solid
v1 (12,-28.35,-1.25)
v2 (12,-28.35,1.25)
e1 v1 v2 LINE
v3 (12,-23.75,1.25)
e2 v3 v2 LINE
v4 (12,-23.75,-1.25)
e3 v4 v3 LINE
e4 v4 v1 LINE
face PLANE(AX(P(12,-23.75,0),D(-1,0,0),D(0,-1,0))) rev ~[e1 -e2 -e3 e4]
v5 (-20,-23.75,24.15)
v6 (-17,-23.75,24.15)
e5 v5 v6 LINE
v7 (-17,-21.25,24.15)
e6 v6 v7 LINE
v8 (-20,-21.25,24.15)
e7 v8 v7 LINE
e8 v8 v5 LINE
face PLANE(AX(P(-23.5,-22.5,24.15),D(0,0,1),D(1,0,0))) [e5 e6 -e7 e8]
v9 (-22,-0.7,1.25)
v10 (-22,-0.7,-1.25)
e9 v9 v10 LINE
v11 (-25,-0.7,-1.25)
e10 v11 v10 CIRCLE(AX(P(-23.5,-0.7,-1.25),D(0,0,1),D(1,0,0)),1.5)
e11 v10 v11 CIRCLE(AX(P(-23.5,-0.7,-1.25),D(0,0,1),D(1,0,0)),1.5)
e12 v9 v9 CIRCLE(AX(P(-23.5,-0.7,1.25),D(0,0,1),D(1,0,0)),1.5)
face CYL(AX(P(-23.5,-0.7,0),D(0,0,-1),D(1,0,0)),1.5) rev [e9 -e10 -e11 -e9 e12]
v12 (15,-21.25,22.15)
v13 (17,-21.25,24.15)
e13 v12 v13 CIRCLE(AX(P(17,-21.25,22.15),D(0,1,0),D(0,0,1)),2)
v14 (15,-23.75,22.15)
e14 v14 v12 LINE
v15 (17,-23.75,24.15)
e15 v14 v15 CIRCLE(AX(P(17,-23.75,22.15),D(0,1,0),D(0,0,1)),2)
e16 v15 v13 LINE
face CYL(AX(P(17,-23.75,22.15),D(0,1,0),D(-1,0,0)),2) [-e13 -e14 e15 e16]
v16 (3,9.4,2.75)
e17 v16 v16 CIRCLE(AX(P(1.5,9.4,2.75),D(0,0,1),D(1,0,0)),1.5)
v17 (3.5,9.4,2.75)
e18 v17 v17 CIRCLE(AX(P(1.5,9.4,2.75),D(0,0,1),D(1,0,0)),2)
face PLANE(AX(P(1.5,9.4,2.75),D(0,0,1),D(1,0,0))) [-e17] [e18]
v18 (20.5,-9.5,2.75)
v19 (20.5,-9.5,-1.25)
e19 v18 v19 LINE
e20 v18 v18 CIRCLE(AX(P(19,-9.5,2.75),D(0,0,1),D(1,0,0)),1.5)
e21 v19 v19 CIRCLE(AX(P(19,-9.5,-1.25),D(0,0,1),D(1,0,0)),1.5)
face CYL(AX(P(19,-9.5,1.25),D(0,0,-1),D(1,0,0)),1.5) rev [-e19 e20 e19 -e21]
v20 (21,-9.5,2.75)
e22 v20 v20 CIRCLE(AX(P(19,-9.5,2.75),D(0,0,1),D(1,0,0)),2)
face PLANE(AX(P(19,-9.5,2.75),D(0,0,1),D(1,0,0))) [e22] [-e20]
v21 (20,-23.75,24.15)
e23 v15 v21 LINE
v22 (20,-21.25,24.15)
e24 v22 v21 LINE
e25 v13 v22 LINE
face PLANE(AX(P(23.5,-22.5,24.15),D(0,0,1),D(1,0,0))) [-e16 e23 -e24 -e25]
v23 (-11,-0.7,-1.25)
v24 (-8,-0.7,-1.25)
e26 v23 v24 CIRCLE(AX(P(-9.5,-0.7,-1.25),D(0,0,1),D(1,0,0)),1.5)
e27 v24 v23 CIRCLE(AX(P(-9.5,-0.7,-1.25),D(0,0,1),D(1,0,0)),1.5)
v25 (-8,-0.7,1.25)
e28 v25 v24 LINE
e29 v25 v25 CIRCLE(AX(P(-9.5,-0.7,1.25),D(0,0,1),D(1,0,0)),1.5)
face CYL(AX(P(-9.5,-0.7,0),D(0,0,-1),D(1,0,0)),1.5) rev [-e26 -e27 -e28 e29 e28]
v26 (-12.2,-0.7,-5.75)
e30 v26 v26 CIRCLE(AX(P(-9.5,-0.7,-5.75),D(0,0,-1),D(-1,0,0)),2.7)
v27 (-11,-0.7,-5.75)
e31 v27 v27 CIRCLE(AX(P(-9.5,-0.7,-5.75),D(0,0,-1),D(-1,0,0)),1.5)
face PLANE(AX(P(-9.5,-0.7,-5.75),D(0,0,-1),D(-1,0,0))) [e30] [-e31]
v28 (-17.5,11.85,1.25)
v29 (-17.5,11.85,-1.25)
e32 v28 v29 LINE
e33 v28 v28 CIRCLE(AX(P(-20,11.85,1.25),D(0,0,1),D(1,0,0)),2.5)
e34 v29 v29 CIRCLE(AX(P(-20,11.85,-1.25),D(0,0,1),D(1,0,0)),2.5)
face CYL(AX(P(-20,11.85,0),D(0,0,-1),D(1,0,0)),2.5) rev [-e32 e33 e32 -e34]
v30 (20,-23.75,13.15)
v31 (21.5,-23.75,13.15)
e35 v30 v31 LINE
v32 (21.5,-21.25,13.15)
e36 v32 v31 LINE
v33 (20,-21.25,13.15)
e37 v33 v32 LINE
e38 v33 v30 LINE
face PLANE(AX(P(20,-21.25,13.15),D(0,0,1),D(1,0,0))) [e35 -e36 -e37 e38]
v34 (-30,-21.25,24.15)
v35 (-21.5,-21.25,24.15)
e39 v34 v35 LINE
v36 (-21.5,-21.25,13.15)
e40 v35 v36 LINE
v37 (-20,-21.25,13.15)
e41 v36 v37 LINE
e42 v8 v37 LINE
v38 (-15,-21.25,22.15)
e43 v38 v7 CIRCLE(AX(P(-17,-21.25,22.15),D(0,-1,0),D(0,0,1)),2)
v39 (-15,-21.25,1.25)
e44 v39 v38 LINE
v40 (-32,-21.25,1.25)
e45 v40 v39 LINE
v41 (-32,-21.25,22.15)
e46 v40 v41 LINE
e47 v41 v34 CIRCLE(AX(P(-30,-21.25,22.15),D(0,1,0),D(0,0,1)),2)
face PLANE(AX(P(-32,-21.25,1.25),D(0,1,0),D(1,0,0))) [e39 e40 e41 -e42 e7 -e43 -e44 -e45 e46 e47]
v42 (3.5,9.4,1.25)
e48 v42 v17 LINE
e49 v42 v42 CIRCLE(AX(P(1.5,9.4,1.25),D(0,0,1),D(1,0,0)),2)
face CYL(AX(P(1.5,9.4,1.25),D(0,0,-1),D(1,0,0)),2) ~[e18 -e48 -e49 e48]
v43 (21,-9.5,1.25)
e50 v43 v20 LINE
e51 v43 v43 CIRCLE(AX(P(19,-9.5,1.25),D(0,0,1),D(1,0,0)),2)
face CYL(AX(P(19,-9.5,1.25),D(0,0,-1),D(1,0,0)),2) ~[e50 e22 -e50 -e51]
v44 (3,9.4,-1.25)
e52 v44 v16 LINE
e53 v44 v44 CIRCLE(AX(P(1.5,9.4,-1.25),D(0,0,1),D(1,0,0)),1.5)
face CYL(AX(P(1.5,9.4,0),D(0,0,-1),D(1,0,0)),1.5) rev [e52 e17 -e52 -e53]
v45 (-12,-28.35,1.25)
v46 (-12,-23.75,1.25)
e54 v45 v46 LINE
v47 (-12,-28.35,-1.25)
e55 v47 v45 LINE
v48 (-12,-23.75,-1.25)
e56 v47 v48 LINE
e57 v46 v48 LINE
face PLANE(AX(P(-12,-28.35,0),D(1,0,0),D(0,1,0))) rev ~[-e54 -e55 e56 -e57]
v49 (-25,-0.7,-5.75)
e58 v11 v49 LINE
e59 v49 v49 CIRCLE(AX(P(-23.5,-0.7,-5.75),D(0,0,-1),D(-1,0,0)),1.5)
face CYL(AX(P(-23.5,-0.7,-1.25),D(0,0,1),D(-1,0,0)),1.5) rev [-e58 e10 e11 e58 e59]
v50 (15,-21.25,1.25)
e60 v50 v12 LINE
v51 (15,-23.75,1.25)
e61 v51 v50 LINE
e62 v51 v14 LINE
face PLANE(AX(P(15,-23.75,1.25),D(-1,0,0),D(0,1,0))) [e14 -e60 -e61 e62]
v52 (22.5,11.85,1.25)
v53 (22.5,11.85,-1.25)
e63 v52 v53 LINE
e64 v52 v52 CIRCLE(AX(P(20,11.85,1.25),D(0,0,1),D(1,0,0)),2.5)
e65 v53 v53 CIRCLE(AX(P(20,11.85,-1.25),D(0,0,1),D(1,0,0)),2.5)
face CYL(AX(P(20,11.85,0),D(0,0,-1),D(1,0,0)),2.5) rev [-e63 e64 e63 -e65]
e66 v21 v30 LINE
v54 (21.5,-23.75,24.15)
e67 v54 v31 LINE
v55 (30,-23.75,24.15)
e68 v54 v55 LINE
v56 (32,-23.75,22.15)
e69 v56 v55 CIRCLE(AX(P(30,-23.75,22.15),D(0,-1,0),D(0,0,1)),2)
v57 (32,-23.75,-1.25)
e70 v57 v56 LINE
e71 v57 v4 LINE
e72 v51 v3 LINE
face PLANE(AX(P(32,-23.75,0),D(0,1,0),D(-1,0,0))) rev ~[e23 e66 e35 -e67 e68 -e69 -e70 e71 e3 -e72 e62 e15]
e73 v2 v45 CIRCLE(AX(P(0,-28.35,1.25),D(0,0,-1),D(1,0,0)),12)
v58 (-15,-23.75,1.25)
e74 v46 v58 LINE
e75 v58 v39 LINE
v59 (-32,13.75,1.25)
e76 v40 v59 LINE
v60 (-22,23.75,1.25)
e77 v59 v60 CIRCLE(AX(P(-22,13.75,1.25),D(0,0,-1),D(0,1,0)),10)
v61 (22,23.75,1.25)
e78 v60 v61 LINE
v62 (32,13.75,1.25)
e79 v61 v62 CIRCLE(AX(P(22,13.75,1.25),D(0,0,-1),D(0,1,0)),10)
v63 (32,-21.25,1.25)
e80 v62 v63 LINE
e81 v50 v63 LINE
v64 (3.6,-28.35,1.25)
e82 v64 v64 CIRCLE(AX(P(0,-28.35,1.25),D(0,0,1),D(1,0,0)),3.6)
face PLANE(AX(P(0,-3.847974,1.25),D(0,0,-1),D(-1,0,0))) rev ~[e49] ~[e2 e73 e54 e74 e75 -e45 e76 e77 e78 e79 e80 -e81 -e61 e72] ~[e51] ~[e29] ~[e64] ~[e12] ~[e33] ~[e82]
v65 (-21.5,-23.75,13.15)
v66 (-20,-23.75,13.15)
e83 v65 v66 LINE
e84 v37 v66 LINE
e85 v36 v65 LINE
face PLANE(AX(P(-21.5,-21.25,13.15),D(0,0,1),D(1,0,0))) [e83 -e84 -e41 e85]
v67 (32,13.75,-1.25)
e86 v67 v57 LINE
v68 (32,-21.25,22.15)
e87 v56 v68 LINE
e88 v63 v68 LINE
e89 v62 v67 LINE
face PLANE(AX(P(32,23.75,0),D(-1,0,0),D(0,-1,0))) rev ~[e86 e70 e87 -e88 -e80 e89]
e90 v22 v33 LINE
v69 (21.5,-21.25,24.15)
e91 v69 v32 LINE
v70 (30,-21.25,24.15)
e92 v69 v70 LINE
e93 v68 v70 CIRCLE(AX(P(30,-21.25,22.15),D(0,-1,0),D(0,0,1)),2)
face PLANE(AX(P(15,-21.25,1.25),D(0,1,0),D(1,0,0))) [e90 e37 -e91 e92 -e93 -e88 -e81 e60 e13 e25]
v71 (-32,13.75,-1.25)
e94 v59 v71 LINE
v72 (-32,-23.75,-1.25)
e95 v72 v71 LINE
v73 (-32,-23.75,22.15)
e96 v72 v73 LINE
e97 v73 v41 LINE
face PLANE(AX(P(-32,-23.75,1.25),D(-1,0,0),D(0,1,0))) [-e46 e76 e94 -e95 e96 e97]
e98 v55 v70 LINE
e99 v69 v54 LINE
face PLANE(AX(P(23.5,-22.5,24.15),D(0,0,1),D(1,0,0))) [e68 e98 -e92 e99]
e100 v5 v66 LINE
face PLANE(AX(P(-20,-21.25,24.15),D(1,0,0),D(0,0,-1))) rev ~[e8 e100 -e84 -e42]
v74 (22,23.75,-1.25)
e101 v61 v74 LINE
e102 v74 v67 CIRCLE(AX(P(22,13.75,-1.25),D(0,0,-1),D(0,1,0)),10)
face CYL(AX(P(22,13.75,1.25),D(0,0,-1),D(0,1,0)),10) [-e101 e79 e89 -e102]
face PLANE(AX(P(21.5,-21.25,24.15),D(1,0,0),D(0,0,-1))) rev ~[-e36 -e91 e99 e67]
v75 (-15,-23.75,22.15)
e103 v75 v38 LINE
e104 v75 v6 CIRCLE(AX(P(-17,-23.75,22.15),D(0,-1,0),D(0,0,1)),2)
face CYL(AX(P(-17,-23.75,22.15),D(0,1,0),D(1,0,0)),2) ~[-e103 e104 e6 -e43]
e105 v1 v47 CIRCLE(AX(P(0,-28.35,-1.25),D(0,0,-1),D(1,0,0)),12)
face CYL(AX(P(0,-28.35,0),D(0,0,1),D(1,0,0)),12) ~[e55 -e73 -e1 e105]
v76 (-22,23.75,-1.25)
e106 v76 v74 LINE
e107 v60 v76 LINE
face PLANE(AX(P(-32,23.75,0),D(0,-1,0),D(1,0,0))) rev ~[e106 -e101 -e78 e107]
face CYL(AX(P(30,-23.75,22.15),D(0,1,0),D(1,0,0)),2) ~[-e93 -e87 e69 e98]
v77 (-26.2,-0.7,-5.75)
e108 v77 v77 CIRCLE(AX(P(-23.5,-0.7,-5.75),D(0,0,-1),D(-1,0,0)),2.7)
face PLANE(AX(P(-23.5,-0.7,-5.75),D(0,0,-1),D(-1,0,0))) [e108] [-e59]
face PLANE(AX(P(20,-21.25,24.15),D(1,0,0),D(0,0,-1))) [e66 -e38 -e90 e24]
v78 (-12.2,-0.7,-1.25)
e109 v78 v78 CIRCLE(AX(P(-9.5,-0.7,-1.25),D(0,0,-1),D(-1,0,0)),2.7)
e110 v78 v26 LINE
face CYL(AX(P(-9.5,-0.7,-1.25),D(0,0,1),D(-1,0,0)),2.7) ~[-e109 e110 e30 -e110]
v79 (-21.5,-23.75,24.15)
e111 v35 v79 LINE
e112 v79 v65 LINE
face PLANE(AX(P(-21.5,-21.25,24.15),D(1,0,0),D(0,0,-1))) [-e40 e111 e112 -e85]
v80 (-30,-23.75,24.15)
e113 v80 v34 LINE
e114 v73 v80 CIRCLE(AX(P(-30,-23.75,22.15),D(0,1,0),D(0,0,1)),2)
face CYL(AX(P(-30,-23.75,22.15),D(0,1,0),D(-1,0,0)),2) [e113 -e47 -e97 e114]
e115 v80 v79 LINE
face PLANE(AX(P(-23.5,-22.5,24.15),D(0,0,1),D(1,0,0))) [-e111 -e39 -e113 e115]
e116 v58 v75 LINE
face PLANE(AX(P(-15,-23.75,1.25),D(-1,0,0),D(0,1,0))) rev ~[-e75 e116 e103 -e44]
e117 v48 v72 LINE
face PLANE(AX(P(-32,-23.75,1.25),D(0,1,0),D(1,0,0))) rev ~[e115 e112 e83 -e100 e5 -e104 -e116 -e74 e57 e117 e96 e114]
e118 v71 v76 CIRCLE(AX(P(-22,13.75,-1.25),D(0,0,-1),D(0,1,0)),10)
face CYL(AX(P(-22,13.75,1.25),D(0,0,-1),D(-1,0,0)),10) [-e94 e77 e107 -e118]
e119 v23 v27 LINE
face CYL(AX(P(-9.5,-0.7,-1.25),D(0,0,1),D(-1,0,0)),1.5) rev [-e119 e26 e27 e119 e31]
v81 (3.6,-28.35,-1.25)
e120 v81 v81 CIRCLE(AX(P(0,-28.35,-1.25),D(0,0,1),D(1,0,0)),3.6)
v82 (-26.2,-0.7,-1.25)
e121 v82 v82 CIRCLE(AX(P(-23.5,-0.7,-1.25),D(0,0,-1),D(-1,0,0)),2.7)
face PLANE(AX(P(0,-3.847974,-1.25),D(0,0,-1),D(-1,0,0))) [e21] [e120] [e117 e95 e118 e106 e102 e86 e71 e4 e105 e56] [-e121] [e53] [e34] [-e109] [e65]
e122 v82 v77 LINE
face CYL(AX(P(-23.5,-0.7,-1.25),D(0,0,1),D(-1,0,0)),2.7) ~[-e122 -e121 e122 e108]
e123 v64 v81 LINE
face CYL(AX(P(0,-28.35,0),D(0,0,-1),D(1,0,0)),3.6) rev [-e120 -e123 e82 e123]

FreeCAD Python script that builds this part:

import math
import FreeCAD as App
import Part
import Sketcher


def edges_at(feature, points):
    """Names of the edges that pass closest to the given points."""
    edges = feature.Shape.Edges
    near = lambda p: min(range(len(edges)), key=lambda i: edges[i].distToShape(Part.Vertex(*p))[0])
    return sorted({f"Edge{near(p) + 1}" for p in points})

doc = App.newDocument("Part")
params = doc.addObject("Spreadsheet::Sheet", "Params")
for row, (alias, value) in enumerate([
    ("sketch1_diameter", "3 mm"),
    ("sketch1_diameter2", "5 mm"),
    ("sketch1_radius", "12 mm"),
    ("sketch1_diameter3", "7.2 mm"),
    ("sketch1_width", "20 mm"),
    ("pad1_length", "2.5 mm"),
    ("sketch2_diameter", "4 mm"),
    ("sketch2_diameter2", "3 mm"),
    ("pad2_length", "1.5 mm"),
    ("sketch3_diameter", "3 mm"),
    ("sketch3_diameter2", "5.4 mm"),
    ("pad3_length", "4.5 mm"),
    ("fillet_radius", "10 mm"),
    ("sketch4_width", "17 mm"),
    ("sketch4_height", "2.5 mm"),
    ("pad4_length", "22.9 mm"),
    ("sketch5_height", "11 mm"),
    ("sketch5_width", "1.5 mm"),
    ("fillet2_radius", "2 mm"),
], start=1):
    params.set(f"A{row}", alias)
    params.set(f"B{row}", "=" + value)
    params.setAlias(f"B{row}", alias)

body = doc.addObject("PartDesign::Body", "Body")

# Sketch on XY plane
sketch1 = body.newObject("Sketcher::SketchObject", "Sketch")
sketch1.AttachmentSupport = (doc.getObject("XY_Plane"), [""])
sketch1.MapMode = "FlatFace"
sketch1.addGeometry([
    Part.LineSegment(App.Vector(-12, -23.8, 0), App.Vector(-12, -28.4, 0)),  # 0
    Part.ArcOfCircle(Part.Circle(App.Vector(0, -28.4, 0), App.Vector(0, 0, 1), 12), math.radians(180), math.radians(360)),  # 1
    Part.LineSegment(App.Vector(12, -28.4, 0), App.Vector(12, -23.8, 0)),  # 2
    Part.LineSegment(App.Vector(12, -23.8, 0), App.Vector(32, -23.8, 0)),  # 3
    Part.LineSegment(App.Vector(32, -23.8, 0), App.Vector(32, 23.8, 0)),  # 4
    Part.LineSegment(App.Vector(32, 23.8, 0), App.Vector(-32, 23.8, 0)),  # 5
    Part.LineSegment(App.Vector(-32, 23.8, 0), App.Vector(-32, -23.8, 0)),  # 6
    Part.LineSegment(App.Vector(-32, -23.8, 0), App.Vector(-12, -23.8, 0)),  # 7
    Part.Circle(App.Vector(0, -28.4, 0), App.Vector(0, 0, 1), 3.6),  # 8
    Part.Circle(App.Vector(19, -9.5, 0), App.Vector(0, 0, 1), 1.5),  # 9
    Part.Circle(App.Vector(20, 11.8, 0), App.Vector(0, 0, 1), 2.5),  # 10
    Part.Circle(App.Vector(1.5, 9.4, 0), App.Vector(0, 0, 1), 1.5),  # 11
    Part.Circle(App.Vector(-9.5, -0.7, 0), App.Vector(0, 0, 1), 1.5),  # 12
    Part.Circle(App.Vector(-23.5, -0.7, 0), App.Vector(0, 0, 1), 1.5),  # 13
    Part.Circle(App.Vector(-20, 11.8, 0), App.Vector(0, 0, 1), 2.5),  # 14
], False)
sketch1.addConstraint([
    Sketcher.Constraint("Tangent", 0, 2, 1, 1),
    Sketcher.Constraint("Tangent", 1, 2, 2, 1),
    Sketcher.Constraint("Coincident", 2, 2, 3, 1),
    Sketcher.Constraint("Coincident", 3, 2, 4, 1),
    Sketcher.Constraint("Coincident", 4, 2, 5, 1),
    Sketcher.Constraint("Coincident", 5, 2, 6, 1),
    Sketcher.Constraint("Coincident", 6, 2, 7, 1),
    Sketcher.Constraint("Coincident", 7, 2, 0, 1),
    Sketcher.Constraint("Vertical", 0),
    Sketcher.Constraint("Vertical", 2),
    Sketcher.Constraint("Horizontal", 3),
    Sketcher.Constraint("Vertical", 4),
    Sketcher.Constraint("Horizontal", 5),
    Sketcher.Constraint("Vertical", 6),
    Sketcher.Constraint("Horizontal", 7),
    Sketcher.Constraint("Coincident", 8, 3, 1, 3),
    Sketcher.Constraint("Equal", 9, 11),
    Sketcher.Constraint("Equal", 11, 12),
    Sketcher.Constraint("Equal", 12, 13),
    Sketcher.Constraint("Equal", 10, 14),
    Sketcher.Constraint("Symmetric", 3, 2, 5, 2, -1, 1),
    Sketcher.Constraint("Symmetric", 10, 3, 14, 3, -2),
    Sketcher.Constraint("Symmetric", 2, 2, 7, 2, -2),
    Sketcher.Constraint("Horizontal", 12, 3, 13, 3),
    Sketcher.Constraint("Diameter", 9, 3.0),
    Sketcher.Constraint("Diameter", 10, 5.0),
    Sketcher.Constraint("Radius", 1, 12.0),
    Sketcher.Constraint("Diameter", 8, 7.2),
    Sketcher.Constraint("DistanceX", 3, 1, 3, 2, 20.0),
    Sketcher.Constraint("DistanceY", 0, 2, 0, 1, 4.6),
    Sketcher.Constraint("DistanceY", 4, 1, 4, 2, 47.5),
    Sketcher.Constraint("DistanceX", -1, 1, 9, 3, 19.0),
    Sketcher.Constraint("DistanceX", -1, 1, 10, 3, 20.0),
    Sketcher.Constraint("DistanceX", 12, 3, 11, 3, 11.0),
    Sketcher.Constraint("DistanceX", 13, 3, 12, 3, 14.0),
    Sketcher.Constraint("DistanceY", 9, 3, -1, 1, 9.5),
    Sketcher.Constraint("DistanceX", -1, 1, 11, 3, 1.5),
    Sketcher.Constraint("DistanceY", -1, 1, 11, 3, 9.4),
    Sketcher.Constraint("DistanceY", 12, 3, -1, 1, 0.7),
    Sketcher.Constraint("DistanceY", 1, 3, 10, 3, 40.2),
])
sketch1.setExpression("Constraints[24]", "Params.sketch1_diameter")
sketch1.setExpression("Constraints[25]", "Params.sketch1_diameter2")
sketch1.setExpression("Constraints[26]", "Params.sketch1_radius")
sketch1.setExpression("Constraints[27]", "Params.sketch1_diameter3")
sketch1.setExpression("Constraints[28]", "Params.sketch1_width")
pad1 = body.newObject("PartDesign::Pad", "Pad")
pad1.Profile = sketch1
pad1.setExpression("Length", "Params.pad1_length")
pad1.Midplane = True

# Sketch on XY plane
sketch2 = body.newObject("Sketcher::SketchObject", "Sketch001")
sketch2.AttachmentSupport = (doc.getObject("XY_Plane"), [""])
sketch2.MapMode = "FlatFace"
sketch2.AttachmentOffset = App.Placement(App.Vector(0, 0, 1.25), App.Rotation())
sketch2.addGeometry([
    Part.Circle(App.Vector(19, -9.5, 0), App.Vector(0, 0, 1), 2),
    Part.Circle(App.Vector(19, -9.5, 0), App.Vector(0, 0, 1), 1.5),
    Part.Circle(App.Vector(1.5, 9.4, 0), App.Vector(0, 0, 1), 2),
    Part.Circle(App.Vector(1.5, 9.4, 0), App.Vector(0, 0, 1), 1.5),
], False)
sketch2.addConstraint([
    Sketcher.Constraint("Coincident", 1, 3, 0, 3),
    Sketcher.Constraint("Coincident", 3, 3, 2, 3),
    Sketcher.Constraint("Equal", 0, 2),
    Sketcher.Constraint("Equal", 1, 3),
    Sketcher.Constraint("Diameter", 0, 4.0),
    Sketcher.Constraint("Diameter", 1, 3.0),
    Sketcher.Constraint("DistanceX", -1, 1, 0, 3, 19.0),
    Sketcher.Constraint("DistanceY", 0, 3, -1, 1, 9.5),
    Sketcher.Constraint("DistanceX", -1, 1, 2, 3, 1.5),
    Sketcher.Constraint("DistanceY", -1, 1, 2, 3, 9.4),
])
sketch2.setExpression("Constraints[4]", "Params.sketch2_diameter")
sketch2.setExpression("Constraints[5]", "Params.sketch2_diameter2")
pad2 = body.newObject("PartDesign::Pad", "Pad001")
pad2.Profile = sketch2
pad2.setExpression("Length", "Params.pad2_length")

# Sketch on XY plane
sketch3 = body.newObject("Sketcher::SketchObject", "Sketch002")
sketch3.AttachmentSupport = (doc.getObject("XY_Plane"), [""])
sketch3.MapMode = "FlatFace"
sketch3.AttachmentOffset = App.Placement(App.Vector(0, 0, -1.25), App.Rotation())
sketch3.addGeometry([
    Part.Circle(App.Vector(-9.5, -0.7, 0), App.Vector(0, 0, 1), 2.7),
    Part.Circle(App.Vector(-9.5, -0.7, 0), App.Vector(0, 0, 1), 1.5),
    Part.Circle(App.Vector(-23.5, -0.7, 0), App.Vector(0, 0, 1), 2.7),
    Part.Circle(App.Vector(-23.5, -0.7, 0), App.Vector(0, 0, 1), 1.5),
], False)
sketch3.addConstraint([
    Sketcher.Constraint("Coincident", 1, 3, 0, 3),
    Sketcher.Constraint("Coincident", 3, 3, 2, 3),
    Sketcher.Constraint("Equal", 0, 2),
    Sketcher.Constraint("Equal", 1, 3),
    Sketcher.Constraint("Horizontal", 1, 3, 2, 3),
    Sketcher.Constraint("Diameter", 1, 3.0),
    Sketcher.Constraint("Diameter", 0, 5.4),
    Sketcher.Constraint("DistanceX", 2, 3, 0, 3, 14.0),
    Sketcher.Constraint("DistanceX", 0, 3, -1, 1, 9.5),
    Sketcher.Constraint("DistanceY", 0, 3, -1, 1, 0.7),
])
sketch3.setExpression("Constraints[5]", "Params.sketch3_diameter")
sketch3.setExpression("Constraints[6]", "Params.sketch3_diameter2")
pad3 = body.newObject("PartDesign::Pad", "Pad002")
pad3.Profile = sketch3
pad3.setExpression("Length", "Params.pad3_length")
pad3.Reversed = True
doc.recompute()

fillet = body.newObject("PartDesign::Fillet", "Fillet")
fillet.Base = (pad3, edges_at(pad3, [(-32, 23.75, 0), (32, 23.75, 0)]))
fillet.setExpression("Radius", "Params.fillet_radius")

# Sketch on XY plane
sketch4 = body.newObject("Sketcher::SketchObject", "Sketch003")
sketch4.AttachmentSupport = (doc.getObject("XY_Plane"), [""])
sketch4.MapMode = "FlatFace"
sketch4.AttachmentOffset = App.Placement(App.Vector(0, 0, 1.25), App.Rotation())
sketch4.addGeometry([
    Part.LineSegment(App.Vector(-32, -21.2, 0), App.Vector(-32, -23.8, 0)),  # 0
    Part.LineSegment(App.Vector(-32, -23.8, 0), App.Vector(-15, -23.8, 0)),  # 1
    Part.LineSegment(App.Vector(-15, -23.8, 0), App.Vector(-15, -21.2, 0)),  # 2
    Part.LineSegment(App.Vector(-15, -21.2, 0), App.Vector(-32, -21.2, 0)),  # 3
    Part.LineSegment(App.Vector(15, -21.2, 0), App.Vector(15, -23.8, 0)),  # 4
    Part.LineSegment(App.Vector(15, -23.8, 0), App.Vector(32, -23.8, 0)),  # 5
    Part.LineSegment(App.Vector(32, -23.8, 0), App.Vector(32, -21.2, 0)),  # 6
    Part.LineSegment(App.Vector(32, -21.2, 0), App.Vector(15, -21.2, 0)),  # 7
], False)
sketch4.addConstraint([
    Sketcher.Constraint("Coincident", 0, 2, 1, 1),
    Sketcher.Constraint("Coincident", 1, 2, 2, 1),
    Sketcher.Constraint("Coincident", 2, 2, 3, 1),
    Sketcher.Constraint("Coincident", 3, 2, 0, 1),
    Sketcher.Constraint("Coincident", 4, 2, 5, 1),
    Sketcher.Constraint("Coincident", 5, 2, 6, 1),
    Sketcher.Constraint("Coincident", 6, 2, 7, 1),
    Sketcher.Constraint("Coincident", 7, 2, 4, 1),
    Sketcher.Constraint("Vertical", 0),
    Sketcher.Constraint("Horizontal", 1),
    Sketcher.Constraint("Vertical", 2),
    Sketcher.Constraint("Horizontal", 3),
    Sketcher.Constraint("Vertical", 4),
    Sketcher.Constraint("Horizontal", 5),
    Sketcher.Constraint("Vertical", 6),
    Sketcher.Constraint("Horizontal", 7),
    Sketcher.Constraint("Symmetric", 1, 2, 4, 2, -2),
    Sketcher.Constraint("Symmetric", 3, 2, 6, 2, -2),
    Sketcher.Constraint("DistanceX", 1, 1, 1, 2, 17.0),
    Sketcher.Constraint("DistanceY", 0, 2, 0, 1, 2.5),
    Sketcher.Constraint("DistanceX", 0, 2, -1, 1, 32.0),
    Sketcher.Constraint("DistanceY", 0, 2, -1, 1, 23.75),
])
sketch4.setExpression("Constraints[18]", "Params.sketch4_width")
sketch4.setExpression("Constraints[19]", "Params.sketch4_height")
pad4 = body.newObject("PartDesign::Pad", "Pad003")
pad4.Profile = sketch4
pad4.setExpression("Length", "Params.pad4_length")

# Sketch on XZ plane
sketch5 = body.newObject("Sketcher::SketchObject", "Sketch004")
sketch5.AttachmentSupport = (doc.getObject("XZ_Plane"), [""])
sketch5.MapMode = "FlatFace"
sketch5.AttachmentOffset = App.Placement(App.Vector(0, 0, 21.25), App.Rotation())
sketch5.addGeometry([
    Part.LineSegment(App.Vector(-21.5, 13.2, 0), App.Vector(-21.5, 24.1, 0)),  # 0
    Part.LineSegment(App.Vector(-21.5, 24.1, 0), App.Vector(-20, 24.1, 0)),  # 1
    Part.LineSegment(App.Vector(-20, 24.1, 0), App.Vector(-20, 13.2, 0)),  # 2
    Part.LineSegment(App.Vector(-20, 13.2, 0), App.Vector(-21.5, 13.2, 0)),  # 3
    Part.LineSegment(App.Vector(20, 13.2, 0), App.Vector(20, 24.1, 0)),  # 4
    Part.LineSegment(App.Vector(20, 24.1, 0), App.Vector(21.5, 24.1, 0)),  # 5
    Part.LineSegment(App.Vector(21.5, 24.1, 0), App.Vector(21.5, 13.2, 0)),  # 6
    Part.LineSegment(App.Vector(21.5, 13.2, 0), App.Vector(20, 13.2, 0)),  # 7
], False)
sketch5.addConstraint([
    Sketcher.Constraint("Coincident", 0, 2, 1, 1),
    Sketcher.Constraint("Coincident", 1, 2, 2, 1),
    Sketcher.Constraint("Coincident", 2, 2, 3, 1),
    Sketcher.Constraint("Coincident", 3, 2, 0, 1),
    Sketcher.Constraint("Coincident", 4, 2, 5, 1),
    Sketcher.Constraint("Coincident", 5, 2, 6, 1),
    Sketcher.Constraint("Coincident", 6, 2, 7, 1),
    Sketcher.Constraint("Coincident", 7, 2, 4, 1),
    Sketcher.Constraint("Vertical", 0),
    Sketcher.Constraint("Horizontal", 1),
    Sketcher.Constraint("Vertical", 2),
    Sketcher.Constraint("Horizontal", 3),
    Sketcher.Constraint("Vertical", 4),
    Sketcher.Constraint("Horizontal", 5),
    Sketcher.Constraint("Vertical", 6),
    Sketcher.Constraint("Horizontal", 7),
    Sketcher.Constraint("Symmetric", 1, 2, 4, 2, -2),
    Sketcher.Constraint("Symmetric", 3, 2, 6, 2, -2),
    Sketcher.Constraint("DistanceY", 0, 1, 0, 2, 11.0),
    Sketcher.Constraint("DistanceX", 1, 1, 1, 2, 1.5),
    Sketcher.Constraint("DistanceX", 1, 2, -1, 1, 20.0),
    Sketcher.Constraint("DistanceY", -1, 1, 0, 2, 24.15),
])
sketch5.setExpression("Constraints[18]", "Params.sketch5_height")
sketch5.setExpression("Constraints[19]", "Params.sketch5_width")
pocket1 = body.newObject("PartDesign::Pocket", "Pocket")
pocket1.Profile = sketch5
pocket1.Type = "ThroughAll"
pocket1.Reversed = True
doc.recompute()

fillet2 = body.newObject("PartDesign::Fillet", "Fillet001")
fillet2.Base = (pocket1, edges_at(pocket1, [
    (32, -22.5, 24.15),
    (15, -22.5, 24.15),
    (-32, -22.5, 24.15),
    (-15, -22.5, 24.15),
]))
fillet2.setExpression("Radius", "Params.fillet2_radius")

doc.recompute()
